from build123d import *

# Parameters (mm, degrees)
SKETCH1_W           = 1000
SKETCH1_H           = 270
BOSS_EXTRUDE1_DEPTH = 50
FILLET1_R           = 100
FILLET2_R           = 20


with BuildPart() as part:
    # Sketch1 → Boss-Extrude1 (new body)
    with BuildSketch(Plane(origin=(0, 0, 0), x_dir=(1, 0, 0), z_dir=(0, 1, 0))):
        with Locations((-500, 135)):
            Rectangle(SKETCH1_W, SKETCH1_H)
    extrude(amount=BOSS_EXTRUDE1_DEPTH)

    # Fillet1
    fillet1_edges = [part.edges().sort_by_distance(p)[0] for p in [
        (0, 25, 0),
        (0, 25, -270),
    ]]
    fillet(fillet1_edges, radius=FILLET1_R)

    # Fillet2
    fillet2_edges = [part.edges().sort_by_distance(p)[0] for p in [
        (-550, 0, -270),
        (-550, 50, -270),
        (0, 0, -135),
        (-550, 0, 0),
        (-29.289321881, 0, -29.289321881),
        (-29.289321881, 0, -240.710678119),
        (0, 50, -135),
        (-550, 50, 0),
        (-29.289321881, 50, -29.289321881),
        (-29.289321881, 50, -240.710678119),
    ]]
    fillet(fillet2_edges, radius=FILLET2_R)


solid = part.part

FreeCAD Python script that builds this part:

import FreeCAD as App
import Part
import Sketcher
from FreeCAD import Vector


def edges_at(feature, points):
    """Names of the edges that pass closest to the given points."""
    edges = feature.Shape.Edges
    near = lambda p: min(range(len(edges)), key=lambda i: edges[i].distToShape(Part.Vertex(*p))[0])
    return sorted({f"Edge{near(p) + 1}" for p in points})

doc = App.newDocument("Part")
body = doc.addObject("PartDesign::Body", "Body")

# Sketch on XZ plane
sketch1 = body.newObject("Sketcher::SketchObject", "Sketch")
sketch1.AttachmentSupport = (doc.getObject("XZ_Plane"), [""])
sketch1.MapMode = "FlatFace"
sketch1.addGeometry([
    Part.LineSegment(Vector(-1000, -270, 0), Vector(-1000, 0, 0)),
    Part.LineSegment(Vector(-1000, 0, 0), Vector(0, 0, 0)),
    Part.LineSegment(Vector(0, 0, 0), Vector(0, -270, 0)),
    Part.LineSegment(Vector(0, -270, 0), Vector(-1000, -270, 0)),
], False)
sketch1.addConstraint([
    Sketcher.Constraint("Coincident", 0, 2, 1, 1),
    Sketcher.Constraint("Coincident", 1, 2, 2, 1),
    Sketcher.Constraint("Coincident", 2, 2, 3, 1),
    Sketcher.Constraint("Coincident", 3, 2, 0, 1),
    Sketcher.Constraint("Vertical", 0),
    Sketcher.Constraint("Horizontal", 1),
    Sketcher.Constraint("Vertical", 2),
    Sketcher.Constraint("Horizontal", 3),
    Sketcher.Constraint("Coincident", 1, 2, -1, 1),
    Sketcher.Constraint("DistanceX", 1, 1, 1, 2, 1000.0),
    Sketcher.Constraint("DistanceY", 0, 1, 0, 2, 270.0),
])
pad1 = body.newObject("PartDesign::Pad", "Pad")
pad1.Profile = sketch1
pad1.Length = 50
pad1.Reversed = True
doc.recompute()

fillet = body.newObject("PartDesign::Fillet", "Fillet")
fillet.Base = (pad1, edges_at(pad1, [(0, 25, 0), (0, 25, -270)]))
fillet.Radius = 100
doc.recompute()

fillet2 = body.newObject("PartDesign::Fillet", "Fillet001")
fillet2.Base = (fillet, edges_at(fillet, [
    (-550, 0, -270),
    (-550, 50, -270),
    (0, 0, -135),
    (-550, 0, 0),
    (-29.289, 0, -29.289),
    (-29.289, 0, -240.711),
    (0, 50, -135),
    (-550, 50, 0),
    (-29.289, 50, -29.289),
    (-29.289, 50, -240.711),
]))
fillet2.Radius = 20

doc.recompute()
